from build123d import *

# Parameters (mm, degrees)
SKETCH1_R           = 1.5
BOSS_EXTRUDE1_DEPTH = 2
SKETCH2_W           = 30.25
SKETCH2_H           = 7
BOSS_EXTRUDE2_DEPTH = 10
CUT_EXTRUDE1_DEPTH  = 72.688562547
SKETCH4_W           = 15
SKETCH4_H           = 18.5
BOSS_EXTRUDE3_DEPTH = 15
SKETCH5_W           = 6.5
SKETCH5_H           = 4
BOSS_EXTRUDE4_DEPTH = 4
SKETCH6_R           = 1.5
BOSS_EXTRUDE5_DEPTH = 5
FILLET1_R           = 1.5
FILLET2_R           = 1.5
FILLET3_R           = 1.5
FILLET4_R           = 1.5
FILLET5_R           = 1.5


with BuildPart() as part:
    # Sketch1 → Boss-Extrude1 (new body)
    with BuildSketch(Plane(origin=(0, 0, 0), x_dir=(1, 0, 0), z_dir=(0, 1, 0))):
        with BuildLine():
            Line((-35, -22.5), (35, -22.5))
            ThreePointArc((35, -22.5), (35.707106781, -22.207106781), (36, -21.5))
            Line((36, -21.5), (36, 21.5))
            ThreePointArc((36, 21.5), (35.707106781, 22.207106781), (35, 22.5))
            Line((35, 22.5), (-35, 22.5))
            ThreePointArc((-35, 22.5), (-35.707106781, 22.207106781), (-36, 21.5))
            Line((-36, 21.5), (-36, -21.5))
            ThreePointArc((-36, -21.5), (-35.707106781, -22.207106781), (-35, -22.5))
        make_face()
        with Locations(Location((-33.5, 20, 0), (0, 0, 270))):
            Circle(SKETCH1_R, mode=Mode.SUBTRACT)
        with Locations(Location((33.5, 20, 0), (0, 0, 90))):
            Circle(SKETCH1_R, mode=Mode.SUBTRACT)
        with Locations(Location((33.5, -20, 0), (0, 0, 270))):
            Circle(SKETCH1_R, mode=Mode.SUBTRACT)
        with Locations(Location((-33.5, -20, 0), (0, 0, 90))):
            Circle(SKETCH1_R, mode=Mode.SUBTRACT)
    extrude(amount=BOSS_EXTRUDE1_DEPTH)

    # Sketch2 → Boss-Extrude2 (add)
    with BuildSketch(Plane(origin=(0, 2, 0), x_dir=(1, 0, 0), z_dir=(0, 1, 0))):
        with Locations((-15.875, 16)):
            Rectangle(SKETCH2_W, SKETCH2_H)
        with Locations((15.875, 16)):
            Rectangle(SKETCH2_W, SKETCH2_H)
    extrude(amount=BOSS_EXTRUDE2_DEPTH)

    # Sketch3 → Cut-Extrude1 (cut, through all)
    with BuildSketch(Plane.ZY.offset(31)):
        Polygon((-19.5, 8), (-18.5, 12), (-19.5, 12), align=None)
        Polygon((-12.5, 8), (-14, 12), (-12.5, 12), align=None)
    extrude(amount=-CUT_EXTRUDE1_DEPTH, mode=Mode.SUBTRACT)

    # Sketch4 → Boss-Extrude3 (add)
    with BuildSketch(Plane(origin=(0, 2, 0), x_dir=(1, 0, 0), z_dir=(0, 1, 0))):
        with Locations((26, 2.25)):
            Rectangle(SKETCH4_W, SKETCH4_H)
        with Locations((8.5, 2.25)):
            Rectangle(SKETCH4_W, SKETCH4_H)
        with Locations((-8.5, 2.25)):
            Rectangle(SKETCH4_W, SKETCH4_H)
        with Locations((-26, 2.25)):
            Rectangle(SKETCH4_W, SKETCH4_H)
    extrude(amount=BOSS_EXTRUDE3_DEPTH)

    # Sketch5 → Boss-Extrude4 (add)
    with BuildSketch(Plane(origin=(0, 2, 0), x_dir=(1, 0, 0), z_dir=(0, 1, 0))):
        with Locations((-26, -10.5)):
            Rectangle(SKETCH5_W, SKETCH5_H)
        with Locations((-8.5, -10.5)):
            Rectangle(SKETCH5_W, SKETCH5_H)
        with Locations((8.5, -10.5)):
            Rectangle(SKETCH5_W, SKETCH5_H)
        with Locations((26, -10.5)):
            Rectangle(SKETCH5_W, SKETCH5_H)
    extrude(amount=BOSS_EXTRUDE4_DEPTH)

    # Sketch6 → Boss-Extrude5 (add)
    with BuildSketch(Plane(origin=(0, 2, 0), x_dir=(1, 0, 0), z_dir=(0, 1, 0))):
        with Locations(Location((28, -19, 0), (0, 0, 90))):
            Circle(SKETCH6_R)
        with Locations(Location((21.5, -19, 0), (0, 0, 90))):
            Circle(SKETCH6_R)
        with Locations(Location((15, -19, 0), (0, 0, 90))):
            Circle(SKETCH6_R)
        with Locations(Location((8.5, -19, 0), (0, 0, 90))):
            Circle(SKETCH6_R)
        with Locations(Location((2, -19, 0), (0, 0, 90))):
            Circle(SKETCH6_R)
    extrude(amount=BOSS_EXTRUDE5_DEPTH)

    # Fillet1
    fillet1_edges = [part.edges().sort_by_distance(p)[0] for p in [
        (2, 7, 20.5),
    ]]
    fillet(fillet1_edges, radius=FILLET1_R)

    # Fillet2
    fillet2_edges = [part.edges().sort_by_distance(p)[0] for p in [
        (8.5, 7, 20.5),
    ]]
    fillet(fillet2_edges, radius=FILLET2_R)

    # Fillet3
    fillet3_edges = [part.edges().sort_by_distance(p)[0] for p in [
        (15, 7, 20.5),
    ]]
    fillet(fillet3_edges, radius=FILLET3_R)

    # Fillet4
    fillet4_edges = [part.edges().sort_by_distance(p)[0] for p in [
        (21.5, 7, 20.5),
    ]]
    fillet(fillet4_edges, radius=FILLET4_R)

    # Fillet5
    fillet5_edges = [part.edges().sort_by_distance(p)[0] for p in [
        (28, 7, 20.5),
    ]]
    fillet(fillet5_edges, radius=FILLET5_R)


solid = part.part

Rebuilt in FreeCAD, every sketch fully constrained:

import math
import FreeCAD as App
import Part
import Sketcher

V = App.Vector


def edges_at(feature, points):
    """Names of the edges that pass closest to the given points."""
    edges = feature.Shape.Edges
    near = lambda p: min(range(len(edges)), key=lambda i: edges[i].distToShape(Part.Vertex(*p))[0])
    return sorted({f"Edge{near(p) + 1}" for p in points})

doc = App.newDocument("Part")
body = doc.addObject("PartDesign::Body", "Body")

sketch1 = body.newObject("Sketcher::SketchObject", "Sketch")
sketch1.AttachmentSupport = (doc.getObject("XZ_Plane"), [""])
sketch1.MapMode = "FlatFace"
sketch1.addGeometry(Part.LineSegment(V(-35, 22.5, 0), V(35, 22.5, 0)), False)
sketch1.addGeometry(Part.ArcOfCircle(Part.Circle(V(35, 21.5, 0), V(0, 0, 1), 1), math.radians(0), math.radians(90)), False)
sketch1.addGeometry(Part.LineSegment(V(36, 21.5, 0), V(36, -21.5, 0)), False)
sketch1.addGeometry(Part.ArcOfCircle(Part.Circle(V(35, -21.5, 0), V(0, 0, 1), 1), math.radians(-90), math.radians(0)), False)
sketch1.addGeometry(Part.LineSegment(V(35, -22.5, 0), V(-35, -22.5, 0)), False)
sketch1.addGeometry(Part.ArcOfCircle(Part.Circle(V(-35, -21.5, 0), V(0, 0, 1), 1), math.radians(-180), math.radians(-90)), False)
sketch1.addGeometry(Part.LineSegment(V(-36, -21.5, 0), V(-36, 21.5, 0)), False)
sketch1.addGeometry(Part.ArcOfCircle(Part.Circle(V(-35, 21.5, 0), V(0, 0, 1), 1), math.radians(90), math.radians(180)), False)
sketch1.addGeometry(Part.Circle(V(-33.5, 20, 0), V(0, 0, 1), 1.5), False)
sketch1.addGeometry(Part.Circle(V(33.5, 20, 0), V(0, 0, 1), 1.5), False)
sketch1.addGeometry(Part.Circle(V(-33.5, -20, 0), V(0, 0, 1), 1.5), False)
sketch1.addGeometry(Part.Circle(V(33.5, -20, 0), V(0, 0, 1), 1.5), False)
sketch1.addConstraint(Sketcher.Constraint("Tangent", 0, 2, 1, 2))
sketch1.addConstraint(Sketcher.Constraint("Tangent", 1, 1, 2, 1))
sketch1.addConstraint(Sketcher.Constraint("Tangent", 2, 2, 3, 2))
sketch1.addConstraint(Sketcher.Constraint("Tangent", 3, 1, 4, 1))
sketch1.addConstraint(Sketcher.Constraint("Tangent", 4, 2, 5, 2))
sketch1.addConstraint(Sketcher.Constraint("Tangent", 5, 1, 6, 1))
sketch1.addConstraint(Sketcher.Constraint("Tangent", 6, 2, 7, 2))
sketch1.addConstraint(Sketcher.Constraint("Tangent", 7, 1, 0, 1))
sketch1.addConstraint(Sketcher.Constraint("Horizontal", 0))
sketch1.addConstraint(Sketcher.Constraint("Vertical", 2))
sketch1.addConstraint(Sketcher.Constraint("Horizontal", 4))
sketch1.addConstraint(Sketcher.Constraint("Vertical", 6))
sketch1.addConstraint(Sketcher.Constraint("Equal", 1, 3))
sketch1.addConstraint(Sketcher.Constraint("Equal", 3, 5))
sketch1.addConstraint(Sketcher.Constraint("Equal", 5, 7))
sketch1.addConstraint(Sketcher.Constraint("Equal", 8, 9))
sketch1.addConstraint(Sketcher.Constraint("Equal", 9, 10))
sketch1.addConstraint(Sketcher.Constraint("Equal", 10, 11))
sketch1.addConstraint(Sketcher.Constraint("Symmetric", 1, 3, 5, 3, -1, 1))
sketch1.addConstraint(Sketcher.Constraint("Symmetric", 9, 3, 10, 3, -1, 1))
sketch1.addConstraint(Sketcher.Constraint("Symmetric", 8, 3, 11, 3, -1, 1))
sketch1.addConstraint(Sketcher.Constraint("Symmetric", 8, 3, 9, 3, -2))
sketch1.addConstraint(Sketcher.Constraint("Diameter", 8, 3.0))
sketch1.addConstraint(Sketcher.Constraint("Radius", 1, 1.0))
sketch1.addConstraint(Sketcher.Constraint("DistanceX", 0, 1, 0, 2, 70.0))
sketch1.addConstraint(Sketcher.Constraint("DistanceY", 2, 2, 2, 1, 43.0))
sketch1.addConstraint(Sketcher.Constraint("DistanceY", -1, 1, 8, 3, 20.0))
sketch1.addConstraint(Sketcher.Constraint("DistanceX", 8, 3, 9, 3, 67.0))
pad1 = body.newObject("PartDesign::Pad", "Pad")
pad1.Profile = sketch1
pad1.Length = 2
pad1.Reversed = True

sketch2 = body.newObject("Sketcher::SketchObject", "Sketch001")
sketch2.AttachmentSupport = (doc.getObject("XZ_Plane"), [""])
sketch2.MapMode = "FlatFace"
sketch2.AttachmentOffset = App.Placement(V(0, 0, -2), App.Rotation())
sketch2.addGeometry(Part.LineSegment(V(-31, -20, 0), V(-31, -12, 0)), False)
sketch2.addGeometry(Part.LineSegment(V(-31, -12, 0), V(-1, -12, 0)), False)
sketch2.addGeometry(Part.LineSegment(V(-1, -12, 0), V(-1, -20, 0)), False)
sketch2.addGeometry(Part.LineSegment(V(-1, -20, 0), V(-31, -20, 0)), False)
sketch2.addGeometry(Part.LineSegment(V(1, -20, 0), V(1, -12, 0)), False)
sketch2.addGeometry(Part.LineSegment(V(1, -12, 0), V(31, -12, 0)), False)
sketch2.addGeometry(Part.LineSegment(V(31, -12, 0), V(31, -20, 0)), False)
sketch2.addGeometry(Part.LineSegment(V(31, -20, 0), V(1, -20, 0)), False)
sketch2.addConstraint(Sketcher.Constraint("Coincident", 0, 2, 1, 1))
sketch2.addConstraint(Sketcher.Constraint("Coincident", 1, 2, 2, 1))
sketch2.addConstraint(Sketcher.Constraint("Coincident", 2, 2, 3, 1))
sketch2.addConstraint(Sketcher.Constraint("Coincident", 3, 2, 0, 1))
sketch2.addConstraint(Sketcher.Constraint("Coincident", 4, 2, 5, 1))
sketch2.addConstraint(Sketcher.Constraint("Coincident", 5, 2, 6, 1))
sketch2.addConstraint(Sketcher.Constraint("Coincident", 6, 2, 7, 1))
sketch2.addConstraint(Sketcher.Constraint("Coincident", 7, 2, 4, 1))
sketch2.addConstraint(Sketcher.Constraint("Vertical", 0))
sketch2.addConstraint(Sketcher.Constraint("Horizontal", 1))
sketch2.addConstraint(Sketcher.Constraint("Vertical", 2))
sketch2.addConstraint(Sketcher.Constraint("Horizontal", 3))
sketch2.addConstraint(Sketcher.Constraint("Vertical", 4))
sketch2.addConstraint(Sketcher.Constraint("Horizontal", 5))
sketch2.addConstraint(Sketcher.Constraint("Vertical", 6))
sketch2.addConstraint(Sketcher.Constraint("Horizontal", 7))
sketch2.addConstraint(Sketcher.Constraint("Symmetric", 1, 2, 4, 2, -2))
sketch2.addConstraint(Sketcher.Constraint("Symmetric", 3, 2, 6, 2, -2))
sketch2.addConstraint(Sketcher.Constraint("DistanceY", 0, 1, 0, 2, 7.0))
sketch2.addConstraint(Sketcher.Constraint("DistanceX", 0, 2, -1, 1, 31.0))
sketch2.addConstraint(Sketcher.Constraint("DistanceX", 1, 1, 1, 2, 30.25))
sketch2.addConstraint(Sketcher.Constraint("DistanceY", 0, 2, -1, 1, 12.5))
pad2 = body.newObject("PartDesign::Pad", "Pad001")
pad2.Profile = sketch2
pad2.Length = 10
pad2.Reversed = True

sketch3 = body.newObject("Sketcher::SketchObject", "Sketch002")
sketch3.AttachmentSupport = (doc.getObject("YZ_Plane"), [""])
sketch3.MapMode = "FlatFace"
sketch3.AttachmentOffset = App.Placement(V(0, 0, -31), App.Rotation())
sketch3.addGeometry(Part.LineSegment(V(8, -19.5, 0), V(12, -18.5, 0)), False)
sketch3.addGeometry(Part.LineSegment(V(12, -18.5, 0), V(12, -19.5, 0)), False)
sketch3.addGeometry(Part.LineSegment(V(12, -19.5, 0), V(8, -19.5, 0)), False)
sketch3.addGeometry(Part.LineSegment(V(12, -14, 0), V(8, -12.5, 0)), False)
sketch3.addGeometry(Part.LineSegment(V(8, -12.5, 0), V(12, -12.5, 0)), False)
sketch3.addGeometry(Part.LineSegment(V(12, -12.5, 0), V(12, -14, 0)), False)
sketch3.addConstraint(Sketcher.Constraint("Coincident", 0, 2, 1, 1))
sketch3.addConstraint(Sketcher.Constraint("Coincident", 1, 2, 2, 1))
sketch3.addConstraint(Sketcher.Constraint("Coincident", 2, 2, 0, 1))
sketch3.addConstraint(Sketcher.Constraint("Coincident", 3, 2, 4, 1))
sketch3.addConstraint(Sketcher.Constraint("Coincident", 4, 2, 5, 1))
sketch3.addConstraint(Sketcher.Constraint("Coincident", 5, 2, 3, 1))
sketch3.addConstraint(Sketcher.Constraint("Vertical", 1))
sketch3.addConstraint(Sketcher.Constraint("Horizontal", 2))
sketch3.addConstraint(Sketcher.Constraint("Horizontal", 4))
sketch3.addConstraint(Sketcher.Constraint("Vertical", 5))
sketch3.addConstraint(Sketcher.Constraint("Vertical", 2, 2, 3, 2))
sketch3.addConstraint(Sketcher.Constraint("Vertical", 1, 2, 4, 2))
sketch3.addConstraint(Sketcher.Constraint("DistanceX", 2, 2, 2, 1, 4.0))
sketch3.addConstraint(Sketcher.Constraint("DistanceY", 1, 2, 1, 1, 1.0))
sketch3.addConstraint(Sketcher.Constraint("DistanceY", 5, 2, 5, 1, 1.5))
sketch3.addConstraint(Sketcher.Constraint("DistanceX", -1, 1, 0, 2, 12.0))
sketch3.addConstraint(Sketcher.Constraint("DistanceY", 5, 2, -1, 1, 14.0))
sketch3.addConstraint(Sketcher.Constraint("DistanceY", 2, 2, 3, 2, 7.0))
pocket1 = body.newObject("PartDesign::Pocket", "Pocket")
pocket1.Profile = sketch3
pocket1.Type = "ThroughAll"
pocket1.Reversed = True

sketch4 = body.newObject("Sketcher::SketchObject", "Sketch003")
sketch4.AttachmentSupport = (doc.getObject("XZ_Plane"), [""])
sketch4.MapMode = "FlatFace"
sketch4.AttachmentOffset = App.Placement(V(0, 0, -2), App.Rotation())
sketch4.addGeometry(Part.LineSegment(V(18, -12, 0), V(18, 7, 0)), False)
sketch4.addGeometry(Part.LineSegment(V(18, 7, 0), V(34, 7, 0)), False)
sketch4.addGeometry(Part.LineSegment(V(34, 7, 0), V(34, -12, 0)), False)
sketch4.addGeometry(Part.LineSegment(V(34, -12, 0), V(18, -12, 0)), False)
sketch4.addGeometry(Part.LineSegment(V(1, -12, 0), V(1, 7, 0)), False)
sketch4.addGeometry(Part.LineSegment(V(1, 7, 0), V(16, 7, 0)), False)
sketch4.addGeometry(Part.LineSegment(V(16, 7, 0), V(16, -12, 0)), False)
sketch4.addGeometry(Part.LineSegment(V(16, -12, 0), V(1, -12, 0)), False)
sketch4.addGeometry(Part.LineSegment(V(-16, -12, 0), V(-16, 7, 0)), False)
sketch4.addGeometry(Part.LineSegment(V(-16, 7, 0), V(-1, 7, 0)), False)
sketch4.addGeometry(Part.LineSegment(V(-1, 7, 0), V(-1, -12, 0)), False)
sketch4.addGeometry(Part.LineSegment(V(-1, -12, 0), V(-16, -12, 0)), False)
sketch4.addGeometry(Part.LineSegment(V(-34, -12, 0), V(-34, 7, 0)), False)
sketch4.addGeometry(Part.LineSegment(V(-34, 7, 0), V(-18, 7, 0)), False)
sketch4.addGeometry(Part.LineSegment(V(-18, 7, 0), V(-18, -12, 0)), False)
sketch4.addGeometry(Part.LineSegment(V(-18, -12, 0), V(-34, -12, 0)), False)
sketch4.addConstraint(Sketcher.Constraint("Coincident", 0, 2, 1, 1))
sketch4.addConstraint(Sketcher.Constraint("Coincident", 1, 2, 2, 1))
sketch4.addConstraint(Sketcher.Constraint("Coincident", 2, 2, 3, 1))
sketch4.addConstraint(Sketcher.Constraint("Coincident", 3, 2, 0, 1))
sketch4.addConstraint(Sketcher.Constraint("Coincident", 4, 2, 5, 1))
sketch4.addConstraint(Sketcher.Constraint("Coincident", 5, 2, 6, 1))
sketch4.addConstraint(Sketcher.Constraint("Coincident", 6, 2, 7, 1))
sketch4.addConstraint(Sketcher.Constraint("Coincident", 7, 2, 4, 1))
sketch4.addConstraint(Sketcher.Constraint("Coincident", 8, 2, 9, 1))
sketch4.addConstraint(Sketcher.Constraint("Coincident", 9, 2, 10, 1))
sketch4.addConstraint(Sketcher.Constraint("Coincident", 10, 2, 11, 1))
sketch4.addConstraint(Sketcher.Constraint("Coincident", 11, 2, 8, 1))
sketch4.addConstraint(Sketcher.Constraint("Coincident", 12, 2, 13, 1))
sketch4.addConstraint(Sketcher.Constraint("Coincident", 13, 2, 14, 1))
sketch4.addConstraint(Sketcher.Constraint("Coincident", 14, 2, 15, 1))
sketch4.addConstraint(Sketcher.Constraint("Coincident", 15, 2, 12, 1))
sketch4.addConstraint(Sketcher.Constraint("Vertical", 0))
sketch4.addConstraint(Sketcher.Constraint("Horizontal", 1))
sketch4.addConstraint(Sketcher.Constraint("Vertical", 2))
sketch4.addConstraint(Sketcher.Constraint("Horizontal", 3))
sketch4.addConstraint(Sketcher.Constraint("Vertical", 4))
sketch4.addConstraint(Sketcher.Constraint("Horizontal", 5))
sketch4.addConstraint(Sketcher.Constraint("Vertical", 6))
sketch4.addConstraint(Sketcher.Constraint("Horizontal", 7))
sketch4.addConstraint(Sketcher.Constraint("Vertical", 8))
sketch4.addConstraint(Sketcher.Constraint("Horizontal", 9))
sketch4.addConstraint(Sketcher.Constraint("Vertical", 10))
sketch4.addConstraint(Sketcher.Constraint("Horizontal", 11))
sketch4.addConstraint(Sketcher.Constraint("Vertical", 12))
sketch4.addConstraint(Sketcher.Constraint("Horizontal", 13))
sketch4.addConstraint(Sketcher.Constraint("Vertical", 14))
sketch4.addConstraint(Sketcher.Constraint("Horizontal", 15))
sketch4.addConstraint(Sketcher.Constraint("Symmetric", 5, 2, 8, 2, -2))
sketch4.addConstraint(Sketcher.Constraint("Symmetric", 7, 2, 10, 2, -2))
sketch4.addConstraint(Sketcher.Constraint("Symmetric", 1, 2, 12, 2, -2))
sketch4.addConstraint(Sketcher.Constraint("Symmetric", 3, 2, 14, 2, -2))
sketch4.addConstraint(Sketcher.Constraint("Horizontal", 1, 2, 4, 2))
sketch4.addConstraint(Sketcher.Constraint("Horizontal", 3, 2, 6, 2))
sketch4.addConstraint(Sketcher.Constraint("Equal", 3, 5))
sketch4.addConstraint(Sketcher.Constraint("DistanceX", 1, 1, 1, 2, 15.0))
sketch4.addConstraint(Sketcher.Constraint("DistanceY", 0, 1, 0, 2, 18.5))
sketch4.addConstraint(Sketcher.Constraint("DistanceY", -1, 1, 0, 2, 7.0))
sketch4.addConstraint(Sketcher.Constraint("DistanceX", -1, 1, 4, 2, 1.0))
sketch4.addConstraint(Sketcher.Constraint("DistanceX", -1, 1, 0, 2, 18.5))
pad3 = body.newObject("PartDesign::Pad", "Pad002")
pad3.Profile = sketch4
pad3.Length = 15
pad3.Reversed = True

sketch5 = body.newObject("Sketcher::SketchObject", "Sketch004")
sketch5.AttachmentSupport = (doc.getObject("XZ_Plane"), [""])
sketch5.MapMode = "FlatFace"
sketch5.AttachmentOffset = App.Placement(V(0, 0, -2), App.Rotation())
sketch5.addGeometry(Part.LineSegment(V(-29.2, 8.5, 0), V(-29.2, 12.5, 0)), False)
sketch5.addGeometry(Part.LineSegment(V(-29.2, 12.5, 0), V(-22.8, 12.5, 0)), False)
sketch5.addGeometry(Part.LineSegment(V(-22.8, 12.5, 0), V(-22.8, 8.5, 0)), False)
sketch5.addGeometry(Part.LineSegment(V(-22.8, 8.5, 0), V(-29.2, 8.5, 0)), False)
sketch5.addGeometry(Part.LineSegment(V(-11.8, 8.5, 0), V(-11.8, 12.5, 0)), False)
sketch5.addGeometry(Part.LineSegment(V(-11.8, 12.5, 0), V(-5.2, 12.5, 0)), False)
sketch5.addGeometry(Part.LineSegment(V(-5.2, 12.5, 0), V(-5.2, 8.5, 0)), False)
sketch5.addGeometry(Part.LineSegment(V(-5.2, 8.5, 0), V(-11.8, 8.5, 0)), False)
sketch5.addGeometry(Part.LineSegment(V(5.2, 8.5, 0), V(5.2, 12.5, 0)), False)
sketch5.addGeometry(Part.LineSegment(V(5.2, 12.5, 0), V(11.8, 12.5, 0)), False)
sketch5.addGeometry(Part.LineSegment(V(11.8, 12.5, 0), V(11.8, 8.5, 0)), False)
sketch5.addGeometry(Part.LineSegment(V(11.8, 8.5, 0), V(5.2, 8.5, 0)), False)
sketch5.addGeometry(Part.LineSegment(V(22.8, 8.5, 0), V(22.8, 12.5, 0)), False)
sketch5.addGeometry(Part.LineSegment(V(22.8, 12.5, 0), V(29.2, 12.5, 0)), False)
sketch5.addGeometry(Part.LineSegment(V(29.2, 12.5, 0), V(29.2, 8.5, 0)), False)
sketch5.addGeometry(Part.LineSegment(V(29.2, 8.5, 0), V(22.8, 8.5, 0)), False)
sketch5.addConstraint(Sketcher.Constraint("Coincident", 0, 2, 1, 1))
sketch5.addConstraint(Sketcher.Constraint("Coincident", 1, 2, 2, 1))
sketch5.addConstraint(Sketcher.Constraint("Coincident", 2, 2, 3, 1))
sketch5.addConstraint(Sketcher.Constraint("Coincident", 3, 2, 0, 1))
sketch5.addConstraint(Sketcher.Constraint("Coincident", 4, 2, 5, 1))
sketch5.addConstraint(Sketcher.Constraint("Coincident", 5, 2, 6, 1))
sketch5.addConstraint(Sketcher.Constraint("Coincident", 6, 2, 7, 1))
sketch5.addConstraint(Sketcher.Constraint("Coincident", 7, 2, 4, 1))
sketch5.addConstraint(Sketcher.Constraint("Coincident", 8, 2, 9, 1))
sketch5.addConstraint(Sketcher.Constraint("Coincident", 9, 2, 10, 1))
sketch5.addConstraint(Sketcher.Constraint("Coincident", 10, 2, 11, 1))
sketch5.addConstraint(Sketcher.Constraint("Coincident", 11, 2, 8, 1))
sketch5.addConstraint(Sketcher.Constraint("Coincident", 12, 2, 13, 1))
sketch5.addConstraint(Sketcher.Constraint("Coincident", 13, 2, 14, 1))
sketch5.addConstraint(Sketcher.Constraint("Coincident", 14, 2, 15, 1))
sketch5.addConstraint(Sketcher.Constraint("Coincident", 15, 2, 12, 1))
sketch5.addConstraint(Sketcher.Constraint("Vertical", 0))
sketch5.addConstraint(Sketcher.Constraint("Horizontal", 1))
sketch5.addConstraint(Sketcher.Constraint("Vertical", 2))
sketch5.addConstraint(Sketcher.Constraint("Horizontal", 3))
sketch5.addConstraint(Sketcher.Constraint("Vertical", 4))
sketch5.addConstraint(Sketcher.Constraint("Horizontal", 5))
sketch5.addConstraint(Sketcher.Constraint("Vertical", 6))
sketch5.addConstraint(Sketcher.Constraint("Horizontal", 7))
sketch5.addConstraint(Sketcher.Constraint("Vertical", 8))
sketch5.addConstraint(Sketcher.Constraint("Horizontal", 9))
sketch5.addConstraint(Sketcher.Constraint("Vertical", 10))
sketch5.addConstraint(Sketcher.Constraint("Horizontal", 11))
sketch5.addConstraint(Sketcher.Constraint("Vertical", 12))
sketch5.addConstraint(Sketcher.Constraint("Horizontal", 13))
sketch5.addConstraint(Sketcher.Constraint("Vertical", 14))
sketch5.addConstraint(Sketcher.Constraint("Horizontal", 15))
sketch5.addConstraint(Sketcher.Constraint("Symmetric", 5, 2, 8, 2, -2))
sketch5.addConstraint(Sketcher.Constraint("Symmetric", 7, 2, 10, 2, -2))
sketch5.addConstraint(Sketcher.Constraint("Symmetric", 1, 2, 12, 2, -2))
sketch5.addConstraint(Sketcher.Constraint("Symmetric", 3, 2, 14, 2, -2))
sketch5.addConstraint(Sketcher.Constraint("Horizontal", 1, 2, 4, 2))
sketch5.addConstraint(Sketcher.Constraint("Horizontal", 3, 2, 6, 2))
sketch5.addConstraint(Sketcher.Constraint("Equal", 3, 5))
sketch5.addConstraint(Sketcher.Constraint("DistanceY", 0, 1, 0, 2, 4.0))
sketch5.addConstraint(Sketcher.Constraint("DistanceX", 1, 1, 1, 2, 6.5))
sketch5.addConstraint(Sketcher.Constraint("DistanceX", 1, 2, 4, 2, 11.0))
sketch5.addConstraint(Sketcher.Constraint("DistanceX", 4, 2, 8, 2, 17.0))
sketch5.addConstraint(Sketcher.Constraint("DistanceY", -1, 1, 0, 2, 12.5))
pad4 = body.newObject("PartDesign::Pad", "Pad003")
pad4.Profile = sketch5
pad4.Length = 4
pad4.Reversed = True

sketch6 = body.newObject("Sketcher::SketchObject", "Sketch005")
sketch6.AttachmentSupport = (doc.getObject("XZ_Plane"), [""])
sketch6.MapMode = "FlatFace"
sketch6.AttachmentOffset = App.Placement(V(0, 0, -2), App.Rotation())
sketch6.addGeometry(Part.Circle(V(28, 19, 0), V(0, 0, 1), 1.5), False)
sketch6.addGeometry(Part.Circle(V(21.5, 19, 0), V(0, 0, 1), 1.5), False)
sketch6.addGeometry(Part.Circle(V(15, 19, 0), V(0, 0, 1), 1.5), False)
sketch6.addGeometry(Part.Circle(V(8.5, 19, 0), V(0, 0, 1), 1.5), False)
sketch6.addGeometry(Part.Circle(V(2, 19, 0), V(0, 0, 1), 1.5), False)
sketch6.addConstraint(Sketcher.Constraint("Equal", 0, 1))
sketch6.addConstraint(Sketcher.Constraint("Equal", 1, 2))
sketch6.addConstraint(Sketcher.Constraint("Equal", 2, 3))
sketch6.addConstraint(Sketcher.Constraint("Equal", 3, 4))
sketch6.addConstraint(Sketcher.Constraint("Horizontal", 0, 3, 1, 3))
sketch6.addConstraint(Sketcher.Constraint("Horizontal", 1, 3, 2, 3))
sketch6.addConstraint(Sketcher.Constraint("Horizontal", 2, 3, 3, 3))
sketch6.addConstraint(Sketcher.Constraint("Horizontal", 3, 3, 4, 3))
sketch6.addConstraint(Sketcher.Constraint("Diameter", 0, 3.0))
sketch6.addConstraint(Sketcher.Constraint("DistanceX", -1, 1, 0, 3, 28.0))
sketch6.addConstraint(Sketcher.Constraint("DistanceY", -1, 1, 0, 3, 19.0))
sketch6.addConstraint(Sketcher.Constraint("DistanceX", -1, 1, 2, 3, 15.0))
sketch6.addConstraint(Sketcher.Constraint("DistanceX", -1, 1, 4, 3, 2.0))
sketch6.addConstraint(Sketcher.Constraint("DistanceX", 3, 3, 1, 3, 13.0))
sketch6.addConstraint(Sketcher.Constraint("DistanceX", -1, 1, 1, 3, 21.5))
pad5 = body.newObject("PartDesign::Pad", "Pad004")
pad5.Profile = sketch6
pad5.Length = 5
pad5.Reversed = True
doc.recompute()

fillet = body.newObject("PartDesign::Fillet", "Fillet")
fillet.Base = (pad5, edges_at(pad5, [(2, 7, 20.5)]))
fillet.Radius = 1.5
doc.recompute()

fillet2 = body.newObject("PartDesign::Fillet", "Fillet001")
fillet2.Base = (fillet, edges_at(fillet, [(8.5, 7, 20.5)]))
fillet2.Radius = 1.5
doc.recompute()

fillet3 = body.newObject("PartDesign::Fillet", "Fillet002")
fillet3.Base = (fillet2, edges_at(fillet2, [(15, 7, 20.5)]))
fillet3.Radius = 1.5
doc.recompute()

fillet4 = body.newObject("PartDesign::Fillet", "Fillet003")
fillet4.Base = (fillet3, edges_at(fillet3, [(21.5, 7, 20.5)]))
fillet4.Radius = 1.5
doc.recompute()

fillet5 = body.newObject("PartDesign::Fillet", "Fillet004")
fillet5.Base = (fillet4, edges_at(fillet4, [(28, 7, 20.5)]))
fillet5.Radius = 1.5

doc.recompute()
